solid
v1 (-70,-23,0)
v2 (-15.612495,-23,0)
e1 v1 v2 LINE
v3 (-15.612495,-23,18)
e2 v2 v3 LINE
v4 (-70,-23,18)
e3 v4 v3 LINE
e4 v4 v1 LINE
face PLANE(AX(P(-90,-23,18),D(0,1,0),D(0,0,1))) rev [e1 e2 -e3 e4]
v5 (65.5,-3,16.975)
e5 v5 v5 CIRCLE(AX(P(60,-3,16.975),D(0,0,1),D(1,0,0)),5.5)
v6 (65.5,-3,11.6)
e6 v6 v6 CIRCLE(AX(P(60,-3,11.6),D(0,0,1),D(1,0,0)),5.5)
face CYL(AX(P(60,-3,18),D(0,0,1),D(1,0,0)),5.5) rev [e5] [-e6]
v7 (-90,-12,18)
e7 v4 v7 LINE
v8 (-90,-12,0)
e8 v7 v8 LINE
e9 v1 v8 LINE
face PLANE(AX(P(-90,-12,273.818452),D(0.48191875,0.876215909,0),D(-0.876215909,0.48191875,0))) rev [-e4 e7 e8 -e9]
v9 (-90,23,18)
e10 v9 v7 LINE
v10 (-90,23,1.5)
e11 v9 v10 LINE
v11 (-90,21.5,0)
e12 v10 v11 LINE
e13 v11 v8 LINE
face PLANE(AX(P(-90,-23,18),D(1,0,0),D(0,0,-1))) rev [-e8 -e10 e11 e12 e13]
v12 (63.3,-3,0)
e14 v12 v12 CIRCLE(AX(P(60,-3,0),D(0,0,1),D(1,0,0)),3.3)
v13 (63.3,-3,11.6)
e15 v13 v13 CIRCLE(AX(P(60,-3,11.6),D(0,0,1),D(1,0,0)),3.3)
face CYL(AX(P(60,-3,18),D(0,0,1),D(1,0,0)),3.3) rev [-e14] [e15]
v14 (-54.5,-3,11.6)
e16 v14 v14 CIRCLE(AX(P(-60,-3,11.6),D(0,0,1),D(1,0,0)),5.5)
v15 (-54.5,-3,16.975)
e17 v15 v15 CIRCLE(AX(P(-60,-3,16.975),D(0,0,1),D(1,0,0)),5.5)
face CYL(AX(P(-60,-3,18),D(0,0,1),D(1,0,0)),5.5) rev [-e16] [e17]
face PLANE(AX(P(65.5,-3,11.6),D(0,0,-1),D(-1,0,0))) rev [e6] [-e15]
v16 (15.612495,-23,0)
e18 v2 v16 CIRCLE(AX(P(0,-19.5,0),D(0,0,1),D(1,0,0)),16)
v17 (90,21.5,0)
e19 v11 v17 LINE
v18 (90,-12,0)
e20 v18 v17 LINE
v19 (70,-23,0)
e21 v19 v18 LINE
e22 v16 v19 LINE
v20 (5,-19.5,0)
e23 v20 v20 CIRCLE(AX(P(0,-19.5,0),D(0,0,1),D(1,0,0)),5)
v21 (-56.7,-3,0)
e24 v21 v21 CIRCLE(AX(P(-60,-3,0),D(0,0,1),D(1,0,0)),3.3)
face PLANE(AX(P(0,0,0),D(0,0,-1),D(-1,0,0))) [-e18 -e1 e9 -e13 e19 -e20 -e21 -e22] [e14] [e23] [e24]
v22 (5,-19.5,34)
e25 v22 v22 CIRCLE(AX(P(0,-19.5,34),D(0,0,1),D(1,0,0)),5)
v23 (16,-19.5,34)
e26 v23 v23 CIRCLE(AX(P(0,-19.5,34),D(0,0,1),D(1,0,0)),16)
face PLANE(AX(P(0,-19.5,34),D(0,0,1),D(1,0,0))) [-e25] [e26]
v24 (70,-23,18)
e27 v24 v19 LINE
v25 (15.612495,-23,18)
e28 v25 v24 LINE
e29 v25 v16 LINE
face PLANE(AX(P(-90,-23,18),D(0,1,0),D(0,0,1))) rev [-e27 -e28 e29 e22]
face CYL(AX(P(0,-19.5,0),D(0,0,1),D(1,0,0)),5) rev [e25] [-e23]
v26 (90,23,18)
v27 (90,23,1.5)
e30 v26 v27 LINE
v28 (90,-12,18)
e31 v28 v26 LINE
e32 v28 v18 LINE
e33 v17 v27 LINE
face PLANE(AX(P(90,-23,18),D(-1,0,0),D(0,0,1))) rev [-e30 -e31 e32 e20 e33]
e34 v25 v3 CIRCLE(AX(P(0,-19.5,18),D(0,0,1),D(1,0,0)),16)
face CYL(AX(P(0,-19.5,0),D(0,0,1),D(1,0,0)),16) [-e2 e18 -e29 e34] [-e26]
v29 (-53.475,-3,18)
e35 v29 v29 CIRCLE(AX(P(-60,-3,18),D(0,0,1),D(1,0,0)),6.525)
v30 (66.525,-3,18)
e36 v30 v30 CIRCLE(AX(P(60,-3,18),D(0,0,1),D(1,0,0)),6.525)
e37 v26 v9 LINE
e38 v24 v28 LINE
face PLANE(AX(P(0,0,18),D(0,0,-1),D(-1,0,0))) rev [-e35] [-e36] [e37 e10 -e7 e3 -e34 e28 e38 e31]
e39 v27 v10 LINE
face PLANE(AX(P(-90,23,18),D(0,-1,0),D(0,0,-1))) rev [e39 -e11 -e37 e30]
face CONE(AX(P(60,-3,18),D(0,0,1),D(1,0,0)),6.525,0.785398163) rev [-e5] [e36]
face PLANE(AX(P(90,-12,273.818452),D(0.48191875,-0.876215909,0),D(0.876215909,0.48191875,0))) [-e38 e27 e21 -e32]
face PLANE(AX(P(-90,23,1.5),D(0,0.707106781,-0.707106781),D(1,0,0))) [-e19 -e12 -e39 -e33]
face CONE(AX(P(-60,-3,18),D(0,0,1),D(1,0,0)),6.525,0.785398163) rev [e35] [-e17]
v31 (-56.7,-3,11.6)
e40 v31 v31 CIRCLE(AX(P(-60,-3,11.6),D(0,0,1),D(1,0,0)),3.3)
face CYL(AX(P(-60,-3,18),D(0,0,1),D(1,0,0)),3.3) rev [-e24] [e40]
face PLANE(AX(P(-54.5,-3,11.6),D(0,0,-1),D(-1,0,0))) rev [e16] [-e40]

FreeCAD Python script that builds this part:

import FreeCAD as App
import Part
import Sketcher
from FreeCAD import Vector
Q = App.Units.Quantity


def edges_at(feature, points):
    """Names of the edges that pass closest to the given points."""
    edges = feature.Shape.Edges
    near = lambda p: min(range(len(edges)), key=lambda i: edges[i].distToShape(Part.Vertex(*p))[0])
    return sorted({f"Edge{near(p) + 1}" for p in points})


def add_polygon(sketch, points):
    """Adds a closed chain of lines whose ends are joined by coincident constraints."""
    first, n = sketch.GeometryCount, len(points)
    for a, b in zip(points, points[1:] + points[:1]):
        sketch.addGeometry(Part.LineSegment(App.Vector(*a, 0), App.Vector(*b, 0)), False)
    for i in range(n):
        sketch.addConstraint(Sketcher.Constraint("Coincident", first + i, 2, first + (i + 1) % n, 1))

doc = App.newDocument("Part")
body = doc.addObject("PartDesign::Body", "Body")

# Sketch on XY plane
sketch1 = doc.addObject("Sketcher::SketchObject", "Sketch")
body.addObject(sketch1)
sketch1.AttachmentSupport = (doc.XY_Plane, [""])
sketch1.MapMode = "FlatFace"
add_polygon(sketch1, [(-90, 23), (-90, -23), (90, -23), (90, 23)])  # lines 0-3
sketch1.addConstraint(Sketcher.Constraint("Vertical", 0))
sketch1.addConstraint(Sketcher.Constraint("Horizontal", 1))
sketch1.addConstraint(Sketcher.Constraint("Vertical", 2))
sketch1.addConstraint(Sketcher.Constraint("Horizontal", 3))
sketch1.addConstraint(Sketcher.Constraint("Symmetric", 0, 2, 2, 2, -1, 1))
sketch1.addConstraint(Sketcher.Constraint("DistanceX", 1, 1, 1, 2, 180.0))
sketch1.addConstraint(Sketcher.Constraint("DistanceY", 0, 2, 0, 1, 46.0))
pad1 = doc.addObject("PartDesign::Pad", "Pad")
body.addObject(pad1)
pad1.Profile = sketch1
pad1.Length = 18

# Sketch on XY plane
sketch2 = doc.addObject("Sketcher::SketchObject", "Sketch001")
body.addObject(sketch2)
sketch2.AttachmentSupport = (doc.XY_Plane, [""])
sketch2.MapMode = "FlatFace"
sketch2.AttachmentOffset = App.Placement(Vector(0, 0, 18), App.Rotation())
add_polygon(sketch2, [(-90, -12), (-420, 170), (-783, -491), (-103, -865), (260, -205), (-70, -23)])  # lines 0-5
sketch2.addConstraint(Sketcher.Constraint("Perpendicular", 0, 1))
sketch2.addConstraint(Sketcher.Constraint("Perpendicular", 1, 2))
sketch2.addConstraint(Sketcher.Constraint("Perpendicular", 2, 3))
sketch2.addConstraint(Sketcher.Constraint("Perpendicular", 3, 4))
sketch2.addConstraint(Sketcher.Constraint("Parallel", 4, 5))
sketch2.addConstraint(Sketcher.Constraint("Equal", 0, 4))
sketch2.addConstraint(Sketcher.Constraint("DistanceX", 4, 2, -1, 1, 70.0))
sketch2.addConstraint(Sketcher.Constraint("DistanceY", 4, 2, -1, 1, 23.0))
sketch2.addConstraint(Sketcher.Constraint("DistanceX", 5, 2, -1, 1, 90.0))
sketch2.addConstraint(Sketcher.Constraint("DistanceY", 5, 2, -1, 1, 12.0))
sketch2.addConstraint(Sketcher.Constraint("DistanceX", 0, 2, -1, 1, 420.107699))
sketch2.addConstraint(Sketcher.Constraint("DistanceX", 2, 2, -1, 1, 103.01077))
pocket1 = doc.addObject("PartDesign::Pocket", "Pocket")
body.addObject(pocket1)
pocket1.Profile = sketch2
pocket1.Type = "ThroughAll"
pocket1.Midplane = True

# Sketch on XY plane
sketch3 = doc.addObject("Sketcher::SketchObject", "Sketch002")
body.addObject(sketch3)
sketch3.AttachmentSupport = (doc.XY_Plane, [""])
sketch3.MapMode = "FlatFace"
sketch3.AttachmentOffset = App.Placement(Vector(0, 0, 18), App.Rotation())
add_polygon(sketch3, [(420, 170), (90, -12), (70, -23), (-260, -205), (103, -865), (783, -491)])  # lines 0-5
sketch3.addConstraint(Sketcher.Constraint("Parallel", 0, 1))
sketch3.addConstraint(Sketcher.Constraint("Parallel", 1, 2))
sketch3.addConstraint(Sketcher.Constraint("Perpendicular", 2, 3))
sketch3.addConstraint(Sketcher.Constraint("Perpendicular", 3, 4))
sketch3.addConstraint(Sketcher.Constraint("Perpendicular", 4, 5))
sketch3.addConstraint(Sketcher.Constraint("Equal", 0, 2))
sketch3.addConstraint(Sketcher.Constraint("DistanceX", -1, 1, 0, 2, 90.0))
sketch3.addConstraint(Sketcher.Constraint("DistanceY", 0, 2, -1, 1, 12.0))
sketch3.addConstraint(Sketcher.Constraint("DistanceX", -1, 1, 1, 2, 70.0))
sketch3.addConstraint(Sketcher.Constraint("DistanceY", 1, 2, -1, 1, 23.0))
sketch3.addConstraint(Sketcher.Constraint("DistanceX", 2, 2, -1, 1, 260.107699))
sketch3.addConstraint(Sketcher.Constraint("DistanceX", -1, 1, 3, 2, 103.01077))
pocket2 = doc.addObject("PartDesign::Pocket", "Pocket001")
body.addObject(pocket2)
pocket2.Profile = sketch3
pocket2.Type = "ThroughAll"
pocket2.Midplane = True

# Sketch on XY plane
sketch4 = doc.addObject("Sketcher::SketchObject", "Sketch003")
body.addObject(sketch4)
sketch4.AttachmentSupport = (doc.XY_Plane, [""])
sketch4.MapMode = "FlatFace"
sketch4.AttachmentOffset = App.Placement(Vector(0, 0, 18), App.Rotation())
sketch4.addGeometry(Part.Circle(Vector(0, -20, 0), Vector(0, 0, 1), 16), False)
sketch4.addConstraint(Sketcher.Constraint("PointOnObject", 0, 3, -2))
sketch4.addConstraint(Sketcher.Constraint("Diameter", 0, 32.0))
sketch4.addConstraint(Sketcher.Constraint("DistanceY", 0, 3, -1, 1, 19.5))
pad2 = doc.addObject("PartDesign::Pad", "Pad001")
body.addObject(pad2)
pad2.Profile = sketch4
pad2.Length = 18
pad2.Reversed = True

# Sketch on XY plane
sketch5 = doc.addObject("Sketcher::SketchObject", "Sketch004")
body.addObject(sketch5)
sketch5.AttachmentSupport = (doc.XY_Plane, [""])
sketch5.MapMode = "FlatFace"
sketch5.AttachmentOffset = App.Placement(Vector(0, 0, 34), App.Rotation())
sketch5.addGeometry(Part.Circle(Vector(0, -20, 0), Vector(0, 0, 1), 16), False)
sketch5.addConstraint(Sketcher.Constraint("PointOnObject", 0, 3, -2))
sketch5.addConstraint(Sketcher.Constraint("Diameter", 0, 32.0))
sketch5.addConstraint(Sketcher.Constraint("DistanceY", 0, 3, -1, 1, 19.5))
pad3 = doc.addObject("PartDesign::Pad", "Pad002")
body.addObject(pad3)
pad3.Profile = sketch5
pad3.Length = 16
pad3.Reversed = True

# Sketch on XY plane
sketch6 = doc.addObject("Sketcher::SketchObject", "Sketch005")
body.addObject(sketch6)
sketch6.AttachmentSupport = (doc.XY_Plane, [""])
sketch6.MapMode = "FlatFace"
sketch6.AttachmentOffset = App.Placement(Vector(0, 0, 34), App.Rotation())
sketch6.addGeometry(Part.Circle(Vector(0, -20, 0), Vector(0, 0, 1), 5), False)
sketch6.addConstraint(Sketcher.Constraint("PointOnObject", 0, 3, -2))
sketch6.addConstraint(Sketcher.Constraint("Diameter", 0, 10.0))
sketch6.addConstraint(Sketcher.Constraint("DistanceY", 0, 3, -1, 1, 19.5))
pocket3 = doc.addObject("PartDesign::Pocket", "Pocket002")
body.addObject(pocket3)
pocket3.Profile = sketch6
pocket3.Type = "ThroughAll"

# Sketch on YZ plane
sketch7 = doc.addObject("Sketcher::SketchObject", "Sketch006")
body.addObject(sketch7)
sketch7.AttachmentSupport = (doc.YZ_Plane, [""])
sketch7.MapMode = "FlatFace"
sketch7.AttachmentOffset = App.Placement(Vector(0, 0, -60), App.Rotation())
add_polygon(sketch7, [(-3, 0), (-3, 18), (-9.5, 18), (-8.5, 17), (-8.5, 11.6), (-6.3, 11.6), (-6.3, 0)])  # lines 0-6
sketch7.addGeometry(Part.LineSegment(Vector(-3, 18, 0), Vector(-3, 0, 0)), True)  # axis
sketch7.addConstraint(Sketcher.Constraint("Vertical", 0))
sketch7.addConstraint(Sketcher.Constraint("Horizontal", 1))
sketch7.addConstraint(Sketcher.Constraint("Vertical", 3))
sketch7.addConstraint(Sketcher.Constraint("Horizontal", 4))
sketch7.addConstraint(Sketcher.Constraint("Vertical", 5))
sketch7.addConstraint(Sketcher.Constraint("Horizontal", 6))
sketch7.addConstraint(Sketcher.Constraint("Vertical", 7))
sketch7.addConstraint(Sketcher.Constraint("Coincident", 7, 1, 0, 2))
sketch7.addConstraint(Sketcher.Constraint("PointOnObject", 5, 2, -1))
sketch7.addConstraint(Sketcher.Constraint("PointOnObject", 7, 2, -1))
sketch7.addConstraint(Sketcher.Constraint("DistanceY", 0, 1, 0, 2, 18.0))
sketch7.addConstraint(Sketcher.Constraint("Angle", 2, Q("-45 deg")))
sketch7.addConstraint(Sketcher.Constraint("DistanceX", 4, 1, 4, 2, 2.2))
sketch7.addConstraint(Sketcher.Constraint("DistanceX", 6, 1, 6, 2, 3.3))
sketch7.addConstraint(Sketcher.Constraint("DistanceY", 5, 2, 5, 1, 11.6))
sketch7.addConstraint(Sketcher.Constraint("DistanceX", 0, 2, -1, 1, 3.0))
sketch7.addConstraint(Sketcher.Constraint("DistanceX", 1, 2, 1, 1, 6.525))
groove = doc.addObject("PartDesign::Groove", "Groove")
body.addObject(groove)
groove.Profile = sketch7
groove.ReferenceAxis = (sketch7, ["Axis0"])
groove.Angle = 360
doc.recompute()

linearpattern = doc.addObject("PartDesign::LinearPattern", "LinearPattern")
body.addObject(linearpattern)
linearpattern.Originals = [groove]
linearpattern.Direction = (doc.X_Axis, [""])
linearpattern.Mode = "offset"
linearpattern.Offset = 120
linearpattern.Occurrences = 2
body.Tip = linearpattern
doc.recompute()

chamfer = doc.addObject("PartDesign::Chamfer", "Chamfer")
body.addObject(chamfer)
chamfer.Base = (linearpattern, edges_at(linearpattern, [(0, 23, 0)]))
chamfer.Size = 1.5

doc.recompute()
